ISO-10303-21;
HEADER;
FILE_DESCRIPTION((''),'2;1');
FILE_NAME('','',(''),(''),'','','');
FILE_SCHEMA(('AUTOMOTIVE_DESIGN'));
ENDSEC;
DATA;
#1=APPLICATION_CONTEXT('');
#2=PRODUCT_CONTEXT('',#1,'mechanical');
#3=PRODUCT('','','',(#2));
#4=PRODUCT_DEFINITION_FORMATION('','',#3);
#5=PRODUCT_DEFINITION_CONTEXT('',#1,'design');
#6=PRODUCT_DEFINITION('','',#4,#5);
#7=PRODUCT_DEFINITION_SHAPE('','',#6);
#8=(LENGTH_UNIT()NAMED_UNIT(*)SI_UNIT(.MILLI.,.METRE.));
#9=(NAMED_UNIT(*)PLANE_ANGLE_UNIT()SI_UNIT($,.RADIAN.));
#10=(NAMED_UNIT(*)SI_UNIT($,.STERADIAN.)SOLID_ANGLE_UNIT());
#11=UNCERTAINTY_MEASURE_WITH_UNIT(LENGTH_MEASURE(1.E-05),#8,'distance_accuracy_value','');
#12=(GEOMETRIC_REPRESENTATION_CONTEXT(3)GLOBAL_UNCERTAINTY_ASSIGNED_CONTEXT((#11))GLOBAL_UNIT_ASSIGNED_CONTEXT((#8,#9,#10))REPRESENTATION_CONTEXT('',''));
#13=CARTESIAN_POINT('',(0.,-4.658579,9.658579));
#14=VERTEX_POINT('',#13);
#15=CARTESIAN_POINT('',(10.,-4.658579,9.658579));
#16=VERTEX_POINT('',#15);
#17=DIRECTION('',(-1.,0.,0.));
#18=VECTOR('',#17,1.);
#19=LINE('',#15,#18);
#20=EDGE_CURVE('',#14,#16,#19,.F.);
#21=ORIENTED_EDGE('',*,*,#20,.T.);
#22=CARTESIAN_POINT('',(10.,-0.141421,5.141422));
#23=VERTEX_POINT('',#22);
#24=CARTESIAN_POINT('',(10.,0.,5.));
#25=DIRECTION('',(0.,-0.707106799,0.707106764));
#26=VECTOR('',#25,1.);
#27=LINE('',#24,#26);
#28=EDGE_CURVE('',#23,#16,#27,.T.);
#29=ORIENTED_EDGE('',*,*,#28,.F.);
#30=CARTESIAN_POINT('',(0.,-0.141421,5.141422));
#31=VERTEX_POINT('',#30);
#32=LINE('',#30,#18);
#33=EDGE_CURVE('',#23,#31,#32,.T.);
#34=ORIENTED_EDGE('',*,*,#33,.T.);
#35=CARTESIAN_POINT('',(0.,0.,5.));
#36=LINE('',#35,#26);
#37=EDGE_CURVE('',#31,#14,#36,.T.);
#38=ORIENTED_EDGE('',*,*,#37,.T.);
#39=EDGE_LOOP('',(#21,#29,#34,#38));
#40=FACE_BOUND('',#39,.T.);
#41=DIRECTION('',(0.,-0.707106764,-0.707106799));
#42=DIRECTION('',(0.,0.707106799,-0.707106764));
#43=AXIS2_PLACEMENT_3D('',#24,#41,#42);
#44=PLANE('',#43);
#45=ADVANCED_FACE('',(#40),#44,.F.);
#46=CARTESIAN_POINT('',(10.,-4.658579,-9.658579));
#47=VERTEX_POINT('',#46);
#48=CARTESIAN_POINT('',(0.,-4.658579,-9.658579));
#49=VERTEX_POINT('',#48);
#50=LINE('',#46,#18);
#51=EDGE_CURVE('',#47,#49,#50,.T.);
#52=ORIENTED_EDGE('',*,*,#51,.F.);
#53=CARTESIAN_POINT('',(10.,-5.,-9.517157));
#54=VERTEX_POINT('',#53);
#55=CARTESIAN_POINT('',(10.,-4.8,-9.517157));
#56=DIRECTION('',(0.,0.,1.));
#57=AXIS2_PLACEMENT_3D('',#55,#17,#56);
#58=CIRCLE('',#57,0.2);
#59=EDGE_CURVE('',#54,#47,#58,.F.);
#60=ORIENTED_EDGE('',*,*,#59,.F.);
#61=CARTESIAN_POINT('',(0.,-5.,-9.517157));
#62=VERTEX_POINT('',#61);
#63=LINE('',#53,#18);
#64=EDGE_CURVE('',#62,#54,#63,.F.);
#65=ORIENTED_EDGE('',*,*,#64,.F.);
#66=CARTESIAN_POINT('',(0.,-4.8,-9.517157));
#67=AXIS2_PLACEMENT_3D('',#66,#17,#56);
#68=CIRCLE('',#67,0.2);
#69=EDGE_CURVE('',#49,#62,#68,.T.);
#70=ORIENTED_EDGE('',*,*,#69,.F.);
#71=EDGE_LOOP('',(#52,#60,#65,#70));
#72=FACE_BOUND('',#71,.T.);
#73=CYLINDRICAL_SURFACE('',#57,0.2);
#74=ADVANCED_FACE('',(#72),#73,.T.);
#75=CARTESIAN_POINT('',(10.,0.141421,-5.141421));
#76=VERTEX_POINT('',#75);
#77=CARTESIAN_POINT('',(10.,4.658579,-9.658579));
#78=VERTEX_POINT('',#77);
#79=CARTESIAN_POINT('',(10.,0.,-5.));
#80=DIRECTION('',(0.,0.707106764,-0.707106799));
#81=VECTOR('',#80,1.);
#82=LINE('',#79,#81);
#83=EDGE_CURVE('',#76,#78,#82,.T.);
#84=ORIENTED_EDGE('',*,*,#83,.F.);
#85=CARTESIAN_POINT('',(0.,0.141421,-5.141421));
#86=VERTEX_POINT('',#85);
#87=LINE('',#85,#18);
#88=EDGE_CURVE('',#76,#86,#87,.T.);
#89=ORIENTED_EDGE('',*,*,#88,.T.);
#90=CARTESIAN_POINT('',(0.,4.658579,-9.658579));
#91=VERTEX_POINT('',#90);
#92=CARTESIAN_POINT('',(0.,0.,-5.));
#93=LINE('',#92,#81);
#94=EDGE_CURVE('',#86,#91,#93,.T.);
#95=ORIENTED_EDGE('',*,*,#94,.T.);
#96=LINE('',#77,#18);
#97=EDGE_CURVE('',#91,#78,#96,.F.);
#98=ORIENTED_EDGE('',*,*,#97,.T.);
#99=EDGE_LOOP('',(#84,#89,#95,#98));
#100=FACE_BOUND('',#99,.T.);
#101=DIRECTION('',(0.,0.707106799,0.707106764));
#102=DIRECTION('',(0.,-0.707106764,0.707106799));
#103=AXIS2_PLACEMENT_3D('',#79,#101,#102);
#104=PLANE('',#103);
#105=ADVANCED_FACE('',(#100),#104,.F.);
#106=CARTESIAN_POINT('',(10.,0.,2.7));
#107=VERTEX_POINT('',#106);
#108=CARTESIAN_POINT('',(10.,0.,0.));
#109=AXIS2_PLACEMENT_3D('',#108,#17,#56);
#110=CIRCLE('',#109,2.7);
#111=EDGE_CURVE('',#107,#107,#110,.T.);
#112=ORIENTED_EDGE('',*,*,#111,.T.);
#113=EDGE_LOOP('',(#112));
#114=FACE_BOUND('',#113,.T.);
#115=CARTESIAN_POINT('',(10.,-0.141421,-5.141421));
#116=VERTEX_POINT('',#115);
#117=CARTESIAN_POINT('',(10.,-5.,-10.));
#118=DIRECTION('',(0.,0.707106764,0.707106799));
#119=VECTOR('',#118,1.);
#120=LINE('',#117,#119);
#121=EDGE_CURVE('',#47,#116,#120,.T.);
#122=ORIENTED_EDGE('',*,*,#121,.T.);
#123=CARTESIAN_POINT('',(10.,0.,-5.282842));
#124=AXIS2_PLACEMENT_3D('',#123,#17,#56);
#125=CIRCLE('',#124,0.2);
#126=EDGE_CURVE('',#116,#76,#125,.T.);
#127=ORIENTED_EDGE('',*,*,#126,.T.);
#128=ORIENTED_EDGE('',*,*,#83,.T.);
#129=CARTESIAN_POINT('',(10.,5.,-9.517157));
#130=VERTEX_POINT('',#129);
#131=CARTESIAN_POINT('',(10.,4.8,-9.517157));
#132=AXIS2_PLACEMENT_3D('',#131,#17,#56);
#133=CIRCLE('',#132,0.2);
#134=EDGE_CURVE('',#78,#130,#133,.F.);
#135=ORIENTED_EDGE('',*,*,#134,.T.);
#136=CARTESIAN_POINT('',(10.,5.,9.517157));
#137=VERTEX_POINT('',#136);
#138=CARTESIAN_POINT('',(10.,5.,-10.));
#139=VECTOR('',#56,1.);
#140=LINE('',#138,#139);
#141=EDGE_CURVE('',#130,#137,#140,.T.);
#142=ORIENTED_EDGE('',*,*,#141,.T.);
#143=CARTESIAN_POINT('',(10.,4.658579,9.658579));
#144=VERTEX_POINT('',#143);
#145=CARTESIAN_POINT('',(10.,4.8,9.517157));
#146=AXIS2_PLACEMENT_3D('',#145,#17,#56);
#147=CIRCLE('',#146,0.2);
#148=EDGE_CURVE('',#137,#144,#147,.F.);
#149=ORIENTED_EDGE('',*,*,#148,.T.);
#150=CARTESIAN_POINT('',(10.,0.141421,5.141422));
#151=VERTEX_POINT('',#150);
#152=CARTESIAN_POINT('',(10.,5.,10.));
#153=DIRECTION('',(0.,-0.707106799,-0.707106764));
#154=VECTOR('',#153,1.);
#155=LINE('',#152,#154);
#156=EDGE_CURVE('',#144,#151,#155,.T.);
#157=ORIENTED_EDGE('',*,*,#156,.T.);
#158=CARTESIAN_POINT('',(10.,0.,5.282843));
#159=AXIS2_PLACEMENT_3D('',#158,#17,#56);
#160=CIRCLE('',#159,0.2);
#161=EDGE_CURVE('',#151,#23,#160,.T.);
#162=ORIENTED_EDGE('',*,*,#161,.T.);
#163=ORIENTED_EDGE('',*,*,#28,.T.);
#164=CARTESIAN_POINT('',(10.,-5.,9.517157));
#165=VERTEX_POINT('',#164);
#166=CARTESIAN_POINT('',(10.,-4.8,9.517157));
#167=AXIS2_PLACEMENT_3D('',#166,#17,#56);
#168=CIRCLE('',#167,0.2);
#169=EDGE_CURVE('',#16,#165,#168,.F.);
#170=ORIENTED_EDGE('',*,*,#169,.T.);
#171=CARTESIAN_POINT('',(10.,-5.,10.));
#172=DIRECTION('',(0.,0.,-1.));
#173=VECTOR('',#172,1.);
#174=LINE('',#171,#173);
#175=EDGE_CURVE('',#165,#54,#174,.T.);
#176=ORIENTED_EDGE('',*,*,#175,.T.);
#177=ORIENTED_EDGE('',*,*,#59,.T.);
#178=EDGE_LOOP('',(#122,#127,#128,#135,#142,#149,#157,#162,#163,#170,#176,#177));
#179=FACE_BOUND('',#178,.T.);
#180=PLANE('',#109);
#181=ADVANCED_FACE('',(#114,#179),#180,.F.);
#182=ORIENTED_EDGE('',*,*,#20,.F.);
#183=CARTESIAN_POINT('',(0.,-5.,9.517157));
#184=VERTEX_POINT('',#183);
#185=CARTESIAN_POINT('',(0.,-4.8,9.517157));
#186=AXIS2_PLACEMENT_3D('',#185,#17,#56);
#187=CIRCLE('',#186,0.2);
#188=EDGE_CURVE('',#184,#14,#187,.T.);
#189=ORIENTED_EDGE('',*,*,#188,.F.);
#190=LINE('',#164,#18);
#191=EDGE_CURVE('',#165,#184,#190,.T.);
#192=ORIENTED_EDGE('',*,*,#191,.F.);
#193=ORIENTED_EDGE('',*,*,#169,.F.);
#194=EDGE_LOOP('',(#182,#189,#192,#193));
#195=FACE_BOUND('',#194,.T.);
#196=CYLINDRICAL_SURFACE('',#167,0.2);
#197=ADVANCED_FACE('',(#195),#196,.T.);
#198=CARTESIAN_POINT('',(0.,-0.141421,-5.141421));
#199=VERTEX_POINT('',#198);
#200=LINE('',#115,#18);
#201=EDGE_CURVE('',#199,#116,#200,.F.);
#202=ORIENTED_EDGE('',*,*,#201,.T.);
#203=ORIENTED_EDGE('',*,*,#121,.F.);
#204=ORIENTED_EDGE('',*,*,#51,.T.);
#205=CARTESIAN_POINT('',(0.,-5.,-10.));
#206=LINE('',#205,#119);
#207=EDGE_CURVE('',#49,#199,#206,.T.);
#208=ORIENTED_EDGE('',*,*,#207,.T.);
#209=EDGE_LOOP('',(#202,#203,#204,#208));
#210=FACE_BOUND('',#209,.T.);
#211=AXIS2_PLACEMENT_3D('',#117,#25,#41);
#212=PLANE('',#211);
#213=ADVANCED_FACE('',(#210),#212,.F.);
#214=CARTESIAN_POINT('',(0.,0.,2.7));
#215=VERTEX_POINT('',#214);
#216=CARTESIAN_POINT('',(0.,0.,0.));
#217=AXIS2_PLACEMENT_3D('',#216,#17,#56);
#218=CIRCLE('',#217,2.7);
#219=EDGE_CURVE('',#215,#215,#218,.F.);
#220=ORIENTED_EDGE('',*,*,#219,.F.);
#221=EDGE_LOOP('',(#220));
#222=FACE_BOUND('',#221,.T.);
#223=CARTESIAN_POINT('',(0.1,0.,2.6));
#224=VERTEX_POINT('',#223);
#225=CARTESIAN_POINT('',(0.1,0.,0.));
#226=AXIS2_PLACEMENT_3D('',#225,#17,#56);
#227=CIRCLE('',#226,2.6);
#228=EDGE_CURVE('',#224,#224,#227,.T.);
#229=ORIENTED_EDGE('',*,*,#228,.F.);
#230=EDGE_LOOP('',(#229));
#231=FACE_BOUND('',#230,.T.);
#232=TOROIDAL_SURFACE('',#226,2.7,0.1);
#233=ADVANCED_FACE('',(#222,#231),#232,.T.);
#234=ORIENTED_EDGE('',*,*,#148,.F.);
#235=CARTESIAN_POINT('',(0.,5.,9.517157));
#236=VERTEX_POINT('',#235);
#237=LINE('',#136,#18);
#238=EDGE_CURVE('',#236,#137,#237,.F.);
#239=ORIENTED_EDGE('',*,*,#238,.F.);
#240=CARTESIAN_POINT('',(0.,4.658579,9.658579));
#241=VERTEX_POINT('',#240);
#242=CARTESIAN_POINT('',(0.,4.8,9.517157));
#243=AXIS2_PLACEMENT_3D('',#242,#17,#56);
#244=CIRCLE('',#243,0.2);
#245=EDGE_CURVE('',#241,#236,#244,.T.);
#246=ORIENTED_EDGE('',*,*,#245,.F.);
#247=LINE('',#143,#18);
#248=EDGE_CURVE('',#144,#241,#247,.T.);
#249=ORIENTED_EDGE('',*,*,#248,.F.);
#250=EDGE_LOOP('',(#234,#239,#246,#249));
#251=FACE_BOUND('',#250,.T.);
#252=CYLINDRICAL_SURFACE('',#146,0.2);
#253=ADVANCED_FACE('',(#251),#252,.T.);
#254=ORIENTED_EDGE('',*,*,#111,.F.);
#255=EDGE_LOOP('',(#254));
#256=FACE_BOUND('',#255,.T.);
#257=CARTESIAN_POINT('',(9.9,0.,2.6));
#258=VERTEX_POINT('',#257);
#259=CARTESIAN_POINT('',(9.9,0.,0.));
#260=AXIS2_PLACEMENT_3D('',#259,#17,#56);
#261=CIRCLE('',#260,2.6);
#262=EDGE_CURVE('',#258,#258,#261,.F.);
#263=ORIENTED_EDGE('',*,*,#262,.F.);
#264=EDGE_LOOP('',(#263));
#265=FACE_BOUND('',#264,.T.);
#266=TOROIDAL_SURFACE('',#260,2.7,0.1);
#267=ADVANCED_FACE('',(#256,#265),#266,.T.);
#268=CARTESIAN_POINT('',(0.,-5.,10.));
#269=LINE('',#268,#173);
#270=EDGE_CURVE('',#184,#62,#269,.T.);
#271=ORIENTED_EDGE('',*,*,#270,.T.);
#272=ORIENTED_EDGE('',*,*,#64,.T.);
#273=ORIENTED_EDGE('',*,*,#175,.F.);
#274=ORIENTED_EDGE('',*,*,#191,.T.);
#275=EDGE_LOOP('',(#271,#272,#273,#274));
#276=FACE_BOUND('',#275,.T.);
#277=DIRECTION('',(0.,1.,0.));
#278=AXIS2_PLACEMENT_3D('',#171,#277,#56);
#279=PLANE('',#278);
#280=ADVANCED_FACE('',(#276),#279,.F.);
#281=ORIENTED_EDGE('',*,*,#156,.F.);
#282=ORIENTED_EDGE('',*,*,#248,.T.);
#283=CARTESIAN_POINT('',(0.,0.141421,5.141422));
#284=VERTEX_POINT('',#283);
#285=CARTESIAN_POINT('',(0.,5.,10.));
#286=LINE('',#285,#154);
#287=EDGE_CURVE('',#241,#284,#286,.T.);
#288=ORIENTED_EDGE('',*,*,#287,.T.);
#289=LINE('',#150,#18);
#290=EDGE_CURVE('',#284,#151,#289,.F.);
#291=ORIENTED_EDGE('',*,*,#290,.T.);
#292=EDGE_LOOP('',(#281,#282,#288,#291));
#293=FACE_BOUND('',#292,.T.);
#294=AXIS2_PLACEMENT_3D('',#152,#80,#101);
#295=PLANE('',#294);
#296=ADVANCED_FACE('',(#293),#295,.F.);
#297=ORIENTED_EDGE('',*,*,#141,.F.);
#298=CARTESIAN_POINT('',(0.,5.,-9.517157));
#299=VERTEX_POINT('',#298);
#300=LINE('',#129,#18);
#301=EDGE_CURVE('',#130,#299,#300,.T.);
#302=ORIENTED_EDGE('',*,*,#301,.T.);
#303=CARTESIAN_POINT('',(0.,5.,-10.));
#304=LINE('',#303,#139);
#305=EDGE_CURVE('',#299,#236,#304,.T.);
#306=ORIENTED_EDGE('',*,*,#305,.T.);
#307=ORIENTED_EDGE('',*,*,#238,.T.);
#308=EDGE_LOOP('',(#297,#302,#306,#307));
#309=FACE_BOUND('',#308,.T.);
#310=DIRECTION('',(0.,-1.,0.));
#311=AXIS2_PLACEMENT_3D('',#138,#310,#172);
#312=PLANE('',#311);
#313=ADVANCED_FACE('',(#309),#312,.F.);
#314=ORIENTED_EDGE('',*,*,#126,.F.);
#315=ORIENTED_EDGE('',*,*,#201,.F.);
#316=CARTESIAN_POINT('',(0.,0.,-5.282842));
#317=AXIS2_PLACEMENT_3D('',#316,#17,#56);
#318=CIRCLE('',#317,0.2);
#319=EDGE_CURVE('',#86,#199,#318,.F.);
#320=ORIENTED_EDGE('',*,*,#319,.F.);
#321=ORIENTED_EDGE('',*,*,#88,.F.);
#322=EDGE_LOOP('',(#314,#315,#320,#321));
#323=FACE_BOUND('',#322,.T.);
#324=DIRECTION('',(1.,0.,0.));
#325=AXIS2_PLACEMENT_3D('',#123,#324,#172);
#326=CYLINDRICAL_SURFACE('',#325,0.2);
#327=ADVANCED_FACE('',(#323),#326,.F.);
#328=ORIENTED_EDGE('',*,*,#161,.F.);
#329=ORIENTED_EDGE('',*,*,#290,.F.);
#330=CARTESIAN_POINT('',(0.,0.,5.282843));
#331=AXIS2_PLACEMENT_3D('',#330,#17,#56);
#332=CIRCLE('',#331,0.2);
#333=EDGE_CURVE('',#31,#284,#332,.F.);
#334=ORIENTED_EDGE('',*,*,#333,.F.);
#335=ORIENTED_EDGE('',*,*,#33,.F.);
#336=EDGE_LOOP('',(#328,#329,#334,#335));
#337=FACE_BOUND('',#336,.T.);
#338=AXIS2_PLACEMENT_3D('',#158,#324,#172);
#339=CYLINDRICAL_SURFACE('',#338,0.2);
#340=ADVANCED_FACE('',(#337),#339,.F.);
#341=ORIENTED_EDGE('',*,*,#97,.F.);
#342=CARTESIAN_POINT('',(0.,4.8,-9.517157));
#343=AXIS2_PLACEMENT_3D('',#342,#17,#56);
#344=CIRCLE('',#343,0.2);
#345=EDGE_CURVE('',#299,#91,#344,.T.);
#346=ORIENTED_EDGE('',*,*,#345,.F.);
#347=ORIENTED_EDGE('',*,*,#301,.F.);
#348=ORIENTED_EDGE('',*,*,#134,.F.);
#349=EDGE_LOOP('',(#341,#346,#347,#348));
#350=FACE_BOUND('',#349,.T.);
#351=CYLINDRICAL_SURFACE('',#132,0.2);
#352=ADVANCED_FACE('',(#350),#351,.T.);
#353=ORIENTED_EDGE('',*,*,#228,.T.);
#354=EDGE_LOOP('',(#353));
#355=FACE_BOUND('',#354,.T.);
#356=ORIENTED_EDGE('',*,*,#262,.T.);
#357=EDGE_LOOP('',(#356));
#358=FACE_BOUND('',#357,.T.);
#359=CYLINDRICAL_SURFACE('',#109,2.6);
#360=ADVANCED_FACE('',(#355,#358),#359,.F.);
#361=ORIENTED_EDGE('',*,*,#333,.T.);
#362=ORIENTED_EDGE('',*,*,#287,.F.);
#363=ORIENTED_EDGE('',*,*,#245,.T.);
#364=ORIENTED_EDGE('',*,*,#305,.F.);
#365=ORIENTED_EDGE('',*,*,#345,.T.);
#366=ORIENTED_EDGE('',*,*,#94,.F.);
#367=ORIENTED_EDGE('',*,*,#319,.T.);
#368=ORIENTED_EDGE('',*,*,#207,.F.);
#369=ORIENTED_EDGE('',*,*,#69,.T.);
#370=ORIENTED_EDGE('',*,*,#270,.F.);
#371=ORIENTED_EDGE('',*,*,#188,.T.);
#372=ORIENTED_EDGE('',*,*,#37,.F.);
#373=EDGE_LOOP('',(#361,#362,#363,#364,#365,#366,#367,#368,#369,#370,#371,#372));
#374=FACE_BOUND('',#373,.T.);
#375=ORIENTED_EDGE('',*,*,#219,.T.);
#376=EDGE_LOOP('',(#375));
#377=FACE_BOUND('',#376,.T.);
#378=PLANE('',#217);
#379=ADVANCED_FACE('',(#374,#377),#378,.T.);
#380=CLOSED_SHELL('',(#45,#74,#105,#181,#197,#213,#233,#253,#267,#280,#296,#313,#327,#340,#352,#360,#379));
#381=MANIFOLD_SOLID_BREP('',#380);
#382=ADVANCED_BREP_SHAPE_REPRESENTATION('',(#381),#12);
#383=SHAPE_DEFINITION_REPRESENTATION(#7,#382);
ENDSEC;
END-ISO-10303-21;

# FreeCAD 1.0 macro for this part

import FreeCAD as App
import Part
import Sketcher

V = App.Vector


def edges_at(feature, points):
    """Names of the edges that pass closest to the given points."""
    edges = feature.Shape.Edges
    near = lambda p: min(range(len(edges)), key=lambda i: edges[i].distToShape(Part.Vertex(*p))[0])
    return sorted({f"Edge{near(p) + 1}" for p in points})

doc = App.newDocument("Part")
body = doc.addObject("PartDesign::Body", "Body")

# Sketch on YZ plane
sketch1 = doc.addObject("Sketcher::SketchObject", "Sketch")
body.addObject(sketch1)
sketch1.AttachmentSupport = (doc.YZ_Plane, [""])
sketch1.MapMode = "FlatFace"
sketch1.addGeometry([
    Part.LineSegment(V(5, -10, 0), V(5, 10, 0)),  # 0
    Part.LineSegment(V(5, 10, 0), V(0, 5, 0)),  # 1
    Part.LineSegment(V(0, 5, 0), V(-5, 10, 0)),  # 2
    Part.LineSegment(V(-5, 10, 0), V(-5, -10, 0)),  # 3
    Part.LineSegment(V(-5, -10, 0), V(0, -5, 0)),  # 4
    Part.LineSegment(V(0, -5, 0), V(5, -10, 0)),  # 5
    Part.Circle(V(0, 0, 0), V(0, 0, 1), 2.6),  # 6
], False)
sketch1.addConstraint([
    Sketcher.Constraint("Coincident", 0, 2, 1, 1),
    Sketcher.Constraint("Coincident", 1, 2, 2, 1),
    Sketcher.Constraint("Coincident", 2, 2, 3, 1),
    Sketcher.Constraint("Coincident", 3, 2, 4, 1),
    Sketcher.Constraint("Coincident", 4, 2, 5, 1),
    Sketcher.Constraint("Coincident", 5, 2, 0, 1),
    Sketcher.Constraint("Vertical", 0),
    Sketcher.Constraint("Vertical", 3),
    Sketcher.Constraint("Coincident", 6, 3, -1, 1),
    Sketcher.Constraint("Symmetric", 0, 2, 3, 2, -1, 1),
    Sketcher.Constraint("Symmetric", 1, 2, 4, 2, -1, 1),
    Sketcher.Constraint("PointOnObject", 1, 2, -2),
    Sketcher.Constraint("Perpendicular", 1, 2),
    Sketcher.Constraint("Perpendicular", 4, 5),
    Sketcher.Constraint("Horizontal", 0, 2, 2, 2),
    Sketcher.Constraint("Diameter", 6, 5.2),
    Sketcher.Constraint("DistanceY", 0, 1, 0, 2, 20.0),
    Sketcher.Constraint("DistanceX", -1, 1, 0, 2, 5.0),
])
pad1 = doc.addObject("PartDesign::Pad", "Pad")
body.addObject(pad1)
pad1.Profile = sketch1
pad1.Length = 10
doc.recompute()

fillet = doc.addObject("PartDesign::Fillet", "Fillet")
body.addObject(fillet)
fillet.Base = (pad1, edges_at(pad1, [
    (5, 0, -5),
    (5, -5, -10),
    (5, -5, 10),
    (5, 0, 5),
    (5, 5, 10),
    (5, 5, -10),
]))
fillet.Radius = 0.2
doc.recompute()

fillet2 = doc.addObject("PartDesign::Fillet", "Fillet001")
body.addObject(fillet2)
fillet2.Base = (fillet, edges_at(fillet, [(0, 0, 2.6), (10, 0, 2.6)]))
fillet2.Radius = 0.1

doc.recompute()
